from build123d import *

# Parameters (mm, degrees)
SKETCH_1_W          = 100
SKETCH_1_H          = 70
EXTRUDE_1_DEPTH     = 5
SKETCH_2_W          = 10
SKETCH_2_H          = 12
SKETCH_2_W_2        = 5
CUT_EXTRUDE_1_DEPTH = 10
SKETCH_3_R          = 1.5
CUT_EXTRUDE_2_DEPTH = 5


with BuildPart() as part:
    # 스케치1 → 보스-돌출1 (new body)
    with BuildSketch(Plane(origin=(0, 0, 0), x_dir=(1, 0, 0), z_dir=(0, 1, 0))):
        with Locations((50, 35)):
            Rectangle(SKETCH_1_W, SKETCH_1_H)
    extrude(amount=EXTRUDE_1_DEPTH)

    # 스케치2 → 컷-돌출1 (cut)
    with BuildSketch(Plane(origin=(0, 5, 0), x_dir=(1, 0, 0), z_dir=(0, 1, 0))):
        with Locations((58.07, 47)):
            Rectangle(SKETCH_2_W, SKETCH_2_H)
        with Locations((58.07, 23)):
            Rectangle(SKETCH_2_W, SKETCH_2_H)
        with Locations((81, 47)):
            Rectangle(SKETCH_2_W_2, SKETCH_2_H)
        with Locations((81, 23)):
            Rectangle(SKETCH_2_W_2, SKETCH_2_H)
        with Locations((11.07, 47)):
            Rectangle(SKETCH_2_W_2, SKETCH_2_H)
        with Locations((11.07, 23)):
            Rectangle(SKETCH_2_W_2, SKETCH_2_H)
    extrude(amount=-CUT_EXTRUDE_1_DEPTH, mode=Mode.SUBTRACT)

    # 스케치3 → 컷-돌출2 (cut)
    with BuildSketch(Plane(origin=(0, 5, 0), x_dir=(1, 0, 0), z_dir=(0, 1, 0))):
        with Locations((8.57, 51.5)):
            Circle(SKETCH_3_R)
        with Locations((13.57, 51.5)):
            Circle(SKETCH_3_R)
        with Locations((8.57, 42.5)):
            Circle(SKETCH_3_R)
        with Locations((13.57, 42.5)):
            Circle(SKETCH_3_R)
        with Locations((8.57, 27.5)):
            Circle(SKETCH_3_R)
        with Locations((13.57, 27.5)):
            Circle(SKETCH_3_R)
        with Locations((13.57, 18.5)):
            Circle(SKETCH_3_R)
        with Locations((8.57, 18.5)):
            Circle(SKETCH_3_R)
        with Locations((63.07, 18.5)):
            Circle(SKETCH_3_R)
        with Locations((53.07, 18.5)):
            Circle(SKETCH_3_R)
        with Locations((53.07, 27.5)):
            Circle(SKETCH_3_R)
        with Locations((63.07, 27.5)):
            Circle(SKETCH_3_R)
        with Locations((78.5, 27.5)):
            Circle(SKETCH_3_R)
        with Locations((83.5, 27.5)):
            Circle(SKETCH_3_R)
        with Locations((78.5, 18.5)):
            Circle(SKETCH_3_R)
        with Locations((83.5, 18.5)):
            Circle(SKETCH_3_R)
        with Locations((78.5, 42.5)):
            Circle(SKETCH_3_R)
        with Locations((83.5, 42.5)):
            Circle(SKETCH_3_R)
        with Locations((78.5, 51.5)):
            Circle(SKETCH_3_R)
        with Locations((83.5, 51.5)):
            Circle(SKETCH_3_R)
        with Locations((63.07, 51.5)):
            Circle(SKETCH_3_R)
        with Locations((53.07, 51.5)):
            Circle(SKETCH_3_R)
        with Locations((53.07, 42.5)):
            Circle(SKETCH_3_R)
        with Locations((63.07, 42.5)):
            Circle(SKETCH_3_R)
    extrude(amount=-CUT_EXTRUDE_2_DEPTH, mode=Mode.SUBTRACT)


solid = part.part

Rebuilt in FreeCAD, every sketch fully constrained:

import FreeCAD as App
import Part
import Sketcher
from FreeCAD import Vector
Q = App.Units.Quantity


def add_polygon(sketch, points):
    """Adds a closed chain of lines whose ends are joined by coincident constraints."""
    first, n = sketch.GeometryCount, len(points)
    for a, b in zip(points, points[1:] + points[:1]):
        sketch.addGeometry(Part.LineSegment(App.Vector(*a, 0), App.Vector(*b, 0)), False)
    for i in range(n):
        sketch.addConstraint(Sketcher.Constraint("Coincident", first + i, 2, first + (i + 1) % n, 1))

doc = App.newDocument("Part")
params = doc.addObject("Spreadsheet::Sheet", "Params")
for row, (alias, value) in enumerate([
    ("sketch1_width", "100 mm"),
    ("sketch1_height", "70 mm"),
    ("pad1_length", "5 mm"),
    ("sketch2_width", "10 mm"),
    ("sketch2_width2", "5 mm"),
    ("sketch2_height", "12 mm"),
    ("pocket1_length", "10 mm"),
    ("sketch3_diameter", "3 mm"),
    ("pocket2_length", "5 mm"),
], start=1):
    params.set(f"A{row}", alias)
    params.set(f"B{row}", "=" + value)
    params.setAlias(f"B{row}", alias)

body = doc.addObject("PartDesign::Body", "Body")

# Sketch on XZ plane
sketch1 = body.newObject("Sketcher::SketchObject", "Sketch")
sketch1.AttachmentSupport = (doc.getObject("XZ_Plane"), [""])
sketch1.MapMode = "FlatFace"
add_polygon(sketch1, [(0, -70), (0, 0), (100, 0), (100, -70)])  # lines 0-3
sketch1.addConstraint(Sketcher.Constraint("Vertical", 0))
sketch1.addConstraint(Sketcher.Constraint("Horizontal", 1))
sketch1.addConstraint(Sketcher.Constraint("Vertical", 2))
sketch1.addConstraint(Sketcher.Constraint("Horizontal", 3))
sketch1.addConstraint(Sketcher.Constraint("Coincident", 0, 2, -1, 1))
sketch1.addConstraint(Sketcher.Constraint("DistanceX", 1, 1, 1, 2, Q("100 mm")))
sketch1.addConstraint(Sketcher.Constraint("DistanceY", 0, 1, 0, 2, Q("70 mm")))
sketch1.setExpression("Constraints[9]", "Params.sketch1_width")
sketch1.setExpression("Constraints[10]", "Params.sketch1_height")
pad1 = body.newObject("PartDesign::Pad", "Pad")
pad1.Profile = sketch1
pad1.setExpression("Length", "Params.pad1_length")
pad1.Reversed = True

# Sketch on XZ plane
sketch2 = body.newObject("Sketcher::SketchObject", "Sketch001")
sketch2.AttachmentSupport = (doc.getObject("XZ_Plane"), [""])
sketch2.MapMode = "FlatFace"
sketch2.AttachmentOffset = App.Placement(Vector(0, 0, -5), App.Rotation())
add_polygon(sketch2, [(53, -53), (53, -41), (63, -41), (63, -53)])  # lines 0-3
add_polygon(sketch2, [(53, -29), (53, -17), (63, -17), (63, -29)])  # lines 4-7
add_polygon(sketch2, [(78, -53), (78, -41), (84, -41), (84, -53)])  # lines 8-11
add_polygon(sketch2, [(78, -29), (78, -17), (84, -17), (84, -29)])  # lines 12-15
add_polygon(sketch2, [(9, -53), (9, -41), (14, -41), (14, -53)])  # lines 16-19
add_polygon(sketch2, [(9, -29), (9, -17), (14, -17), (14, -29)])  # lines 20-23
sketch2.addConstraint(Sketcher.Constraint("Vertical", 0))
sketch2.addConstraint(Sketcher.Constraint("Horizontal", 1))
sketch2.addConstraint(Sketcher.Constraint("Vertical", 2))
sketch2.addConstraint(Sketcher.Constraint("Horizontal", 3))
sketch2.addConstraint(Sketcher.Constraint("Vertical", 4))
sketch2.addConstraint(Sketcher.Constraint("Horizontal", 5))
sketch2.addConstraint(Sketcher.Constraint("Vertical", 6))
sketch2.addConstraint(Sketcher.Constraint("Horizontal", 7))
sketch2.addConstraint(Sketcher.Constraint("Vertical", 8))
sketch2.addConstraint(Sketcher.Constraint("Horizontal", 9))
sketch2.addConstraint(Sketcher.Constraint("Vertical", 10))
sketch2.addConstraint(Sketcher.Constraint("Horizontal", 11))
sketch2.addConstraint(Sketcher.Constraint("Vertical", 12))
sketch2.addConstraint(Sketcher.Constraint("Horizontal", 13))
sketch2.addConstraint(Sketcher.Constraint("Vertical", 14))
sketch2.addConstraint(Sketcher.Constraint("Horizontal", 15))
sketch2.addConstraint(Sketcher.Constraint("Vertical", 16))
sketch2.addConstraint(Sketcher.Constraint("Horizontal", 17))
sketch2.addConstraint(Sketcher.Constraint("Vertical", 18))
sketch2.addConstraint(Sketcher.Constraint("Horizontal", 19))
sketch2.addConstraint(Sketcher.Constraint("Vertical", 20))
sketch2.addConstraint(Sketcher.Constraint("Horizontal", 21))
sketch2.addConstraint(Sketcher.Constraint("Vertical", 22))
sketch2.addConstraint(Sketcher.Constraint("Horizontal", 23))
sketch2.addConstraint(Sketcher.Constraint("Horizontal", 1, 2, 8, 2))
sketch2.addConstraint(Sketcher.Constraint("Horizontal", 3, 2, 10, 2))
sketch2.addConstraint(Sketcher.Constraint("Horizontal", 5, 2, 12, 2))
sketch2.addConstraint(Sketcher.Constraint("Horizontal", 7, 2, 14, 2))
sketch2.addConstraint(Sketcher.Constraint("Horizontal", 9, 2, 16, 2))
sketch2.addConstraint(Sketcher.Constraint("Horizontal", 11, 2, 18, 2))
sketch2.addConstraint(Sketcher.Constraint("Horizontal", 13, 2, 20, 2))
sketch2.addConstraint(Sketcher.Constraint("Horizontal", 15, 2, 22, 2))
sketch2.addConstraint(Sketcher.Constraint("Vertical", 3, 2, 4, 2))
sketch2.addConstraint(Sketcher.Constraint("Vertical", 2, 2, 5, 2))
sketch2.addConstraint(Sketcher.Constraint("Vertical", 11, 2, 12, 2))
sketch2.addConstraint(Sketcher.Constraint("Vertical", 10, 2, 13, 2))
sketch2.addConstraint(Sketcher.Constraint("Vertical", 19, 2, 20, 2))
sketch2.addConstraint(Sketcher.Constraint("Vertical", 18, 2, 21, 2))
sketch2.addConstraint(Sketcher.Constraint("Equal", 15, 17))
sketch2.addConstraint(Sketcher.Constraint("Equal", 2, 4))
sketch2.addConstraint(Sketcher.Constraint("DistanceX", 1, 1, 1, 2, Q("10 mm")))
sketch2.addConstraint(Sketcher.Constraint("DistanceX", 9, 1, 9, 2, Q("5 mm")))
sketch2.addConstraint(Sketcher.Constraint("DistanceY", 0, 1, 0, 2, Q("12 mm")))
sketch2.addConstraint(Sketcher.Constraint("DistanceY", 0, 2, -1, 1, Q("41 mm")))
sketch2.addConstraint(Sketcher.Constraint("DistanceY", 4, 2, -1, 1, Q("17 mm")))
sketch2.addConstraint(Sketcher.Constraint("DistanceX", -1, 1, 8, 2, Q("78.5 mm")))
sketch2.addConstraint(Sketcher.Constraint("DistanceX", 16, 2, 0, 2, Q("44.5 mm")))
sketch2.addConstraint(Sketcher.Constraint("DistanceX", -1, 1, 0, 2, Q("53.07 mm")))
sketch2.setExpression("Constraints[64]", "Params.sketch2_width")
sketch2.setExpression("Constraints[65]", "Params.sketch2_width2")
sketch2.setExpression("Constraints[66]", "Params.sketch2_height")
pocket1 = body.newObject("PartDesign::Pocket", "Pocket")
pocket1.Profile = sketch2
pocket1.setExpression("Length", "Params.pocket1_length")
pocket1.Reversed = True

# Sketch on XZ plane
sketch3 = body.newObject("Sketcher::SketchObject", "Sketch002")
sketch3.AttachmentSupport = (doc.getObject("XZ_Plane"), [""])
sketch3.MapMode = "FlatFace"
sketch3.AttachmentOffset = App.Placement(Vector(0, 0, -5), App.Rotation())
sketch3.addGeometry(Part.Circle(Vector(8.6, -51.5, 0), Vector(0, 0, 1), 1.5), False)
sketch3.addGeometry(Part.Circle(Vector(13.6, -51.5, 0), Vector(0, 0, 1), 1.5), False)
sketch3.addGeometry(Part.Circle(Vector(8.6, -42.5, 0), Vector(0, 0, 1), 1.5), False)
sketch3.addGeometry(Part.Circle(Vector(13.6, -42.5, 0), Vector(0, 0, 1), 1.5), False)
sketch3.addGeometry(Part.Circle(Vector(8.6, -27.5, 0), Vector(0, 0, 1), 1.5), False)
sketch3.addGeometry(Part.Circle(Vector(13.6, -27.5, 0), Vector(0, 0, 1), 1.5), False)
sketch3.addGeometry(Part.Circle(Vector(13.6, -18.5, 0), Vector(0, 0, 1), 1.5), False)
sketch3.addGeometry(Part.Circle(Vector(8.6, -18.5, 0), Vector(0, 0, 1), 1.5), False)
sketch3.addGeometry(Part.Circle(Vector(63.1, -18.5, 0), Vector(0, 0, 1), 1.5), False)
sketch3.addGeometry(Part.Circle(Vector(53.1, -18.5, 0), Vector(0, 0, 1), 1.5), False)
sketch3.addGeometry(Part.Circle(Vector(53.1, -27.5, 0), Vector(0, 0, 1), 1.5), False)
sketch3.addGeometry(Part.Circle(Vector(63.1, -27.5, 0), Vector(0, 0, 1), 1.5), False)
sketch3.addGeometry(Part.Circle(Vector(78.5, -27.5, 0), Vector(0, 0, 1), 1.5), False)
sketch3.addGeometry(Part.Circle(Vector(83.5, -27.5, 0), Vector(0, 0, 1), 1.5), False)
sketch3.addGeometry(Part.Circle(Vector(78.5, -18.5, 0), Vector(0, 0, 1), 1.5), False)
sketch3.addGeometry(Part.Circle(Vector(83.5, -18.5, 0), Vector(0, 0, 1), 1.5), False)
sketch3.addGeometry(Part.Circle(Vector(78.5, -42.5, 0), Vector(0, 0, 1), 1.5), False)
sketch3.addGeometry(Part.Circle(Vector(83.5, -42.5, 0), Vector(0, 0, 1), 1.5), False)
sketch3.addGeometry(Part.Circle(Vector(78.5, -51.5, 0), Vector(0, 0, 1), 1.5), False)
sketch3.addGeometry(Part.Circle(Vector(83.5, -51.5, 0), Vector(0, 0, 1), 1.5), False)
sketch3.addGeometry(Part.Circle(Vector(63.1, -51.5, 0), Vector(0, 0, 1), 1.5), False)
sketch3.addGeometry(Part.Circle(Vector(53.1, -51.5, 0), Vector(0, 0, 1), 1.5), False)
sketch3.addGeometry(Part.Circle(Vector(53.1, -42.5, 0), Vector(0, 0, 1), 1.5), False)
sketch3.addGeometry(Part.Circle(Vector(63.1, -42.5, 0), Vector(0, 0, 1), 1.5), False)
sketch3.addConstraint(Sketcher.Constraint("Equal", 0, 1))
sketch3.addConstraint(Sketcher.Constraint("Equal", 1, 2))
sketch3.addConstraint(Sketcher.Constraint("Equal", 2, 3))
sketch3.addConstraint(Sketcher.Constraint("Equal", 3, 4))
sketch3.addConstraint(Sketcher.Constraint("Equal", 4, 5))
sketch3.addConstraint(Sketcher.Constraint("Equal", 5, 6))
sketch3.addConstraint(Sketcher.Constraint("Equal", 6, 7))
sketch3.addConstraint(Sketcher.Constraint("Equal", 7, 8))
sketch3.addConstraint(Sketcher.Constraint("Equal", 8, 9))
sketch3.addConstraint(Sketcher.Constraint("Equal", 9, 10))
sketch3.addConstraint(Sketcher.Constraint("Equal", 10, 11))
sketch3.addConstraint(Sketcher.Constraint("Equal", 11, 12))
sketch3.addConstraint(Sketcher.Constraint("Equal", 12, 13))
sketch3.addConstraint(Sketcher.Constraint("Equal", 13, 14))
sketch3.addConstraint(Sketcher.Constraint("Equal", 14, 15))
sketch3.addConstraint(Sketcher.Constraint("Equal", 15, 16))
sketch3.addConstraint(Sketcher.Constraint("Equal", 16, 17))
sketch3.addConstraint(Sketcher.Constraint("Equal", 17, 18))
sketch3.addConstraint(Sketcher.Constraint("Equal", 18, 19))
sketch3.addConstraint(Sketcher.Constraint("Equal", 19, 20))
sketch3.addConstraint(Sketcher.Constraint("Equal", 20, 21))
sketch3.addConstraint(Sketcher.Constraint("Equal", 21, 22))
sketch3.addConstraint(Sketcher.Constraint("Equal", 22, 23))
sketch3.addConstraint(Sketcher.Constraint("Horizontal", 0, 3, 1, 3))
sketch3.addConstraint(Sketcher.Constraint("Horizontal", 2, 3, 3, 3))
sketch3.addConstraint(Sketcher.Constraint("Horizontal", 4, 3, 5, 3))
sketch3.addConstraint(Sketcher.Constraint("Horizontal", 6, 3, 7, 3))
sketch3.addConstraint(Sketcher.Constraint("Horizontal", 7, 3, 8, 3))
sketch3.addConstraint(Sketcher.Constraint("Horizontal", 8, 3, 9, 3))
sketch3.addConstraint(Sketcher.Constraint("Horizontal", 5, 3, 10, 3))
sketch3.addConstraint(Sketcher.Constraint("Horizontal", 10, 3, 11, 3))
sketch3.addConstraint(Sketcher.Constraint("Horizontal", 11, 3, 12, 3))
sketch3.addConstraint(Sketcher.Constraint("Horizontal", 12, 3, 13, 3))
sketch3.addConstraint(Sketcher.Constraint("Horizontal", 9, 3, 14, 3))
sketch3.addConstraint(Sketcher.Constraint("Horizontal", 14, 3, 15, 3))
sketch3.addConstraint(Sketcher.Constraint("Horizontal", 3, 3, 16, 3))
sketch3.addConstraint(Sketcher.Constraint("Horizontal", 16, 3, 17, 3))
sketch3.addConstraint(Sketcher.Constraint("Horizontal", 1, 3, 18, 3))
sketch3.addConstraint(Sketcher.Constraint("Horizontal", 18, 3, 19, 3))
sketch3.addConstraint(Sketcher.Constraint("Horizontal", 19, 3, 20, 3))
sketch3.addConstraint(Sketcher.Constraint("Horizontal", 20, 3, 21, 3))
sketch3.addConstraint(Sketcher.Constraint("Horizontal", 17, 3, 22, 3))
sketch3.addConstraint(Sketcher.Constraint("Horizontal", 22, 3, 23, 3))
sketch3.addConstraint(Sketcher.Constraint("Vertical", 0, 3, 2, 3))
sketch3.addConstraint(Sketcher.Constraint("Vertical", 1, 3, 3, 3))
sketch3.addConstraint(Sketcher.Constraint("Vertical", 2, 3, 4, 3))
sketch3.addConstraint(Sketcher.Constraint("Vertical", 3, 3, 5, 3))
sketch3.addConstraint(Sketcher.Constraint("Vertical", 5, 3, 6, 3))
sketch3.addConstraint(Sketcher.Constraint("Vertical", 4, 3, 7, 3))
sketch3.addConstraint(Sketcher.Constraint("Vertical", 9, 3, 10, 3))
sketch3.addConstraint(Sketcher.Constraint("Vertical", 8, 3, 11, 3))
sketch3.addConstraint(Sketcher.Constraint("Vertical", 12, 3, 14, 3))
sketch3.addConstraint(Sketcher.Constraint("Vertical", 13, 3, 15, 3))
sketch3.addConstraint(Sketcher.Constraint("Vertical", 14, 3, 16, 3))
sketch3.addConstraint(Sketcher.Constraint("Vertical", 15, 3, 17, 3))
sketch3.addConstraint(Sketcher.Constraint("Vertical", 16, 3, 18, 3))
sketch3.addConstraint(Sketcher.Constraint("Vertical", 17, 3, 19, 3))
sketch3.addConstraint(Sketcher.Constraint("Vertical", 11, 3, 20, 3))
sketch3.addConstraint(Sketcher.Constraint("Vertical", 10, 3, 21, 3))
sketch3.addConstraint(Sketcher.Constraint("Vertical", 21, 3, 22, 3))
sketch3.addConstraint(Sketcher.Constraint("Vertical", 20, 3, 23, 3))
sketch3.addConstraint(Sketcher.Constraint("Diameter", 0, Q("3 mm")))
sketch3.addConstraint(Sketcher.Constraint("DistanceX", 0, 3, 1, 3, Q("5 mm")))
sketch3.addConstraint(Sketcher.Constraint("DistanceY", 0, 3, 2, 3, Q("9 mm")))
sketch3.addConstraint(Sketcher.Constraint("DistanceY", 2, 3, 4, 3, Q("15 mm")))
sketch3.addConstraint(Sketcher.Constraint("DistanceY", 5, 3, 6, 3, Q("9 mm")))
sketch3.addConstraint(Sketcher.Constraint("DistanceX", 9, 3, 8, 3, Q("10 mm")))
sketch3.addConstraint(Sketcher.Constraint("DistanceX", 12, 3, 13, 3, Q("5 mm")))
sketch3.addConstraint(Sketcher.Constraint("DistanceY", 0, 3, -1, 1, Q("51.5 mm")))
sketch3.addConstraint(Sketcher.Constraint("DistanceX", -1, 1, 12, 3, Q("78.5 mm")))
sketch3.addConstraint(Sketcher.Constraint("DistanceX", 6, 3, 8, 3, Q("49.5 mm")))
sketch3.addConstraint(Sketcher.Constraint("DistanceX", -1, 1, 0, 3, Q("8.57 mm")))
sketch3.setExpression("Constraints[61]", "Params.sketch3_diameter")
pocket2 = body.newObject("PartDesign::Pocket", "Pocket001")
pocket2.Profile = sketch3
pocket2.setExpression("Length", "Params.pocket2_length")
pocket2.Reversed = True

doc.recompute()
